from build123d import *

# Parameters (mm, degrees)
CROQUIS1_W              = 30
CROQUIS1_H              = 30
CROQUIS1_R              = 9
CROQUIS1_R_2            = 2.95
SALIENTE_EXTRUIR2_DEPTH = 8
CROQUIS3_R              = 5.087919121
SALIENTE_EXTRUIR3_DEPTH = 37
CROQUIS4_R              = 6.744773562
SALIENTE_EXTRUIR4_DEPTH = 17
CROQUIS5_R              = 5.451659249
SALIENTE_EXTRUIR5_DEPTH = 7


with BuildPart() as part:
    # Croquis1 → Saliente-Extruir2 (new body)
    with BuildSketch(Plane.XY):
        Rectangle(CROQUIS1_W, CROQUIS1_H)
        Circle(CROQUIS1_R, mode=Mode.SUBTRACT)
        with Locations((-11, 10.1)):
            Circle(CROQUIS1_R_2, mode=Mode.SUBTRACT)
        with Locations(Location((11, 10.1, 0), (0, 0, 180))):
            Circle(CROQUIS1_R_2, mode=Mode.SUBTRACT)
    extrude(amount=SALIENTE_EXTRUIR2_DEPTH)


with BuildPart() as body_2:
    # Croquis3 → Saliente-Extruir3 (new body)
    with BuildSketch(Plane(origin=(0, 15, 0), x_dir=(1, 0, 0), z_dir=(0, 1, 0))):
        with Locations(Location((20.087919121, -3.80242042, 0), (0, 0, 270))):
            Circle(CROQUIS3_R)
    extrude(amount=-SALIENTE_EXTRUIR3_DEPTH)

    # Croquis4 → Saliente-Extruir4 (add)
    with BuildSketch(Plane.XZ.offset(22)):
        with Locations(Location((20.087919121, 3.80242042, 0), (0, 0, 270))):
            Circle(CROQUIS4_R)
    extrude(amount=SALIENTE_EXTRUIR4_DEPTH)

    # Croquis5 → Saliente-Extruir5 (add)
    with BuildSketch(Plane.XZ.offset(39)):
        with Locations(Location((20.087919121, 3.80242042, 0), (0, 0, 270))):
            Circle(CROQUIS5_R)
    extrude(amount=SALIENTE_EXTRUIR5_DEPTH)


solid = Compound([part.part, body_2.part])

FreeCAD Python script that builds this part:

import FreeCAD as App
import Part
import Sketcher
from FreeCAD import Vector

doc = App.newDocument("Part")
params = doc.addObject("Spreadsheet::Sheet", "Params")
for row, (alias, value) in enumerate([
    ("sketch1_diameter", "18 mm"),
    ("sketch1_diameter2", "5.9 mm"),
    ("sketch1_width", "30 mm"),
    ("pad1_length", "8 mm"),
    ("pad2_length", "37 mm"),
    ("pad3_length", "17 mm"),
    ("pad4_length", "7 mm"),
], start=1):
    params.set(f"A{row}", alias)
    params.set(f"B{row}", "=" + value)
    params.setAlias(f"B{row}", alias)

body = doc.addObject("PartDesign::Body", "Body")

# Sketch on XY plane
sketch1 = body.newObject("Sketcher::SketchObject", "Sketch")
sketch1.AttachmentSupport = (doc.getObject("XY_Plane"), [""])
sketch1.MapMode = "FlatFace"
sketch1.addGeometry(Part.LineSegment(Vector(-15, 15, 0), Vector(-15, -15, 0)), False)
sketch1.addGeometry(Part.LineSegment(Vector(-15, -15, 0), Vector(15, -15, 0)), False)
sketch1.addGeometry(Part.LineSegment(Vector(15, -15, 0), Vector(15, 15, 0)), False)
sketch1.addGeometry(Part.LineSegment(Vector(15, 15, 0), Vector(-15, 15, 0)), False)
sketch1.addGeometry(Part.Circle(Vector(0, 0, 0), Vector(0, 0, 1), 9), False)
sketch1.addGeometry(Part.Circle(Vector(-11, 10.1, 0), Vector(0, 0, 1), 2.95), False)
sketch1.addGeometry(Part.Circle(Vector(11, 10.1, 0), Vector(0, 0, 1), 2.95), False)
sketch1.addConstraint(Sketcher.Constraint("Coincident", 0, 2, 1, 1))
sketch1.addConstraint(Sketcher.Constraint("Coincident", 1, 2, 2, 1))
sketch1.addConstraint(Sketcher.Constraint("Coincident", 2, 2, 3, 1))
sketch1.addConstraint(Sketcher.Constraint("Coincident", 3, 2, 0, 1))
sketch1.addConstraint(Sketcher.Constraint("Vertical", 0))
sketch1.addConstraint(Sketcher.Constraint("Horizontal", 1))
sketch1.addConstraint(Sketcher.Constraint("Vertical", 2))
sketch1.addConstraint(Sketcher.Constraint("Horizontal", 3))
sketch1.addConstraint(Sketcher.Constraint("Coincident", 4, 3, -1, 1))
sketch1.addConstraint(Sketcher.Constraint("Equal", 5, 6))
sketch1.addConstraint(Sketcher.Constraint("Symmetric", 0, 2, 2, 2, -1, 1))
sketch1.addConstraint(Sketcher.Constraint("Symmetric", 5, 3, 6, 3, -2))
sketch1.addConstraint(Sketcher.Constraint("Equal", 3, 0))
sketch1.addConstraint(Sketcher.Constraint("Diameter", 4, 18.0))
sketch1.addConstraint(Sketcher.Constraint("Diameter", 5, 5.9))
sketch1.addConstraint(Sketcher.Constraint("DistanceX", 1, 1, 1, 2, 30.0))
sketch1.addConstraint(Sketcher.Constraint("DistanceX", 5, 3, -1, 1, 11.0))
sketch1.addConstraint(Sketcher.Constraint("DistanceY", -1, 1, 5, 3, 10.1))
sketch1.setExpression("Constraints[13]", "Params.sketch1_diameter")
sketch1.setExpression("Constraints[14]", "Params.sketch1_diameter2")
sketch1.setExpression("Constraints[15]", "Params.sketch1_width")
pad1 = body.newObject("PartDesign::Pad", "Pad")
pad1.Profile = sketch1
pad1.setExpression("Length", "Params.pad1_length")
body2 = doc.addObject("PartDesign::Body", "Body001")

# Sketch on XZ plane
sketch2 = body2.newObject("Sketcher::SketchObject", "Sketch001")
sketch2.AttachmentSupport = (doc.getObject("XZ_Plane001"), [""])
sketch2.MapMode = "FlatFace"
sketch2.AttachmentOffset = App.Placement(Vector(0, 0, -15), App.Rotation())
sketch2.addGeometry(Part.Circle(Vector(20.087919, 3.80242, 0), Vector(0, 0, 1), 5.087919), False)
sketch2.addConstraint(Sketcher.Constraint("Diameter", 0, 10.175838))
sketch2.addConstraint(Sketcher.Constraint("DistanceX", -1, 1, 0, 3, 20.087919))
sketch2.addConstraint(Sketcher.Constraint("DistanceY", -1, 1, 0, 3, 3.80242))
pad2 = body2.newObject("PartDesign::Pad", "Pad001")
pad2.Profile = sketch2
pad2.setExpression("Length", "Params.pad2_length")

# Sketch on XZ plane
sketch3 = body2.newObject("Sketcher::SketchObject", "Sketch002")
sketch3.AttachmentSupport = (doc.getObject("XZ_Plane001"), [""])
sketch3.MapMode = "FlatFace"
sketch3.AttachmentOffset = App.Placement(Vector(0, 0, 22), App.Rotation())
sketch3.addGeometry(Part.Circle(Vector(20.087919, 3.80242, 0), Vector(0, 0, 1), 6.744774), False)
sketch3.addConstraint(Sketcher.Constraint("Diameter", 0, 13.489547))
sketch3.addConstraint(Sketcher.Constraint("DistanceX", -1, 1, 0, 3, 20.087919))
sketch3.addConstraint(Sketcher.Constraint("DistanceY", -1, 1, 0, 3, 3.80242))
pad3 = body2.newObject("PartDesign::Pad", "Pad002")
pad3.Profile = sketch3
pad3.setExpression("Length", "Params.pad3_length")

# Sketch on XZ plane
sketch4 = body2.newObject("Sketcher::SketchObject", "Sketch003")
sketch4.AttachmentSupport = (doc.getObject("XZ_Plane001"), [""])
sketch4.MapMode = "FlatFace"
sketch4.AttachmentOffset = App.Placement(Vector(0, 0, 39), App.Rotation())
sketch4.addGeometry(Part.Circle(Vector(20.087919, 3.80242, 0), Vector(0, 0, 1), 5.451659), False)
sketch4.addConstraint(Sketcher.Constraint("Diameter", 0, 10.903318))
sketch4.addConstraint(Sketcher.Constraint("DistanceX", -1, 1, 0, 3, 20.087919))
sketch4.addConstraint(Sketcher.Constraint("DistanceY", -1, 1, 0, 3, 3.80242))
pad4 = body2.newObject("PartDesign::Pad", "Pad003")
pad4.Profile = sketch4
pad4.setExpression("Length", "Params.pad4_length")

doc.recompute()
